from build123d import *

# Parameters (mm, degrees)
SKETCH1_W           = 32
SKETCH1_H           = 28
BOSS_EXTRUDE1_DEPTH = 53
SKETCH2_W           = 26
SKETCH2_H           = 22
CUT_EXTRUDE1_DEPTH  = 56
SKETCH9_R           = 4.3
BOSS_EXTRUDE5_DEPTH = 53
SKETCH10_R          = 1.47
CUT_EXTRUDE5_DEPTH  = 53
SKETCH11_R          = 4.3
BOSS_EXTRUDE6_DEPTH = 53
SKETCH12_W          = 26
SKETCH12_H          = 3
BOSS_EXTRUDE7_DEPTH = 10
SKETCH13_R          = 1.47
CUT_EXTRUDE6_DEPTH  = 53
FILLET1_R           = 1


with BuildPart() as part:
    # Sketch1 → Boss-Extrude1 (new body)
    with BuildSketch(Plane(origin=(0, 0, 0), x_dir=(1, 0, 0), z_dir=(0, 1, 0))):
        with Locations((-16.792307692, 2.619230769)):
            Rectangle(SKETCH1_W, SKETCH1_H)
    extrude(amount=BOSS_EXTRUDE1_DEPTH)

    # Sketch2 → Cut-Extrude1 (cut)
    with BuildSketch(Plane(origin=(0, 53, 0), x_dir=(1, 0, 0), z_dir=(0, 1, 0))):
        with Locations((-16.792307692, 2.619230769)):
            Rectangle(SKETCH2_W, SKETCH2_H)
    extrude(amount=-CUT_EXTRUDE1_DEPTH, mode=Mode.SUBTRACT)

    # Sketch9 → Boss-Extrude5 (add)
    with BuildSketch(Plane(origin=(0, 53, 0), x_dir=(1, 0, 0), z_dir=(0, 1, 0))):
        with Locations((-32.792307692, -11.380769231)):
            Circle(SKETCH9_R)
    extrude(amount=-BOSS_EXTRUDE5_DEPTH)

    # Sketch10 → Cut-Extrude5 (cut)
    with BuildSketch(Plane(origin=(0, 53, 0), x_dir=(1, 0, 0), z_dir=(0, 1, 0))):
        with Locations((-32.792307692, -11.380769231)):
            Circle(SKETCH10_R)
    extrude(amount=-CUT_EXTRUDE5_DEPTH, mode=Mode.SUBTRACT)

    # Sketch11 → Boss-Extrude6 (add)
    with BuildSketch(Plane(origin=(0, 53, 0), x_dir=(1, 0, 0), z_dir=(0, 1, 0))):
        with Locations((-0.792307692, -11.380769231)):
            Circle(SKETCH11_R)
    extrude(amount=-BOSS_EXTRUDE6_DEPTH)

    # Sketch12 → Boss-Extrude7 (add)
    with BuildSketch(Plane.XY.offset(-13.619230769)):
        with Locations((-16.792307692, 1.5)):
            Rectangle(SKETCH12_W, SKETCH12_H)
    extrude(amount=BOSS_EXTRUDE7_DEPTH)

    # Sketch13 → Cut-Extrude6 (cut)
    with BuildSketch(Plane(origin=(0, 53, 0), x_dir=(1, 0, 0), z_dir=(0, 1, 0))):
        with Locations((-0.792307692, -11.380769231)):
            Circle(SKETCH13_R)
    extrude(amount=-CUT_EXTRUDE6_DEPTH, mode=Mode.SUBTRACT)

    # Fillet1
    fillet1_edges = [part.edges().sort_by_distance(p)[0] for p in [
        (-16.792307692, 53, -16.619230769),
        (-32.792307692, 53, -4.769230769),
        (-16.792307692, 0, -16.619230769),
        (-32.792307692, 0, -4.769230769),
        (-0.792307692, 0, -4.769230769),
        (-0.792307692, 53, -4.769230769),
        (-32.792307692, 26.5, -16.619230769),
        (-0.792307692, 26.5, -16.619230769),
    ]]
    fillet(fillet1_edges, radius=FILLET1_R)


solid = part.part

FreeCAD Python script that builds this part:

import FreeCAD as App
import Part
import Sketcher
from FreeCAD import Vector


def edges_at(feature, points):
    """Names of the edges that pass closest to the given points."""
    edges = feature.Shape.Edges
    near = lambda p: min(range(len(edges)), key=lambda i: edges[i].distToShape(Part.Vertex(*p))[0])
    return sorted({f"Edge{near(p) + 1}" for p in points})

doc = App.newDocument("Part")
body = doc.addObject("PartDesign::Body", "Body")

sketch1 = doc.addObject("Sketcher::SketchObject", "Sketch")
body.addObject(sketch1)
sketch1.AttachmentSupport = (doc.XZ_Plane, [""])
sketch1.MapMode = "FlatFace"
sketch1.addGeometry([
    Part.LineSegment(Vector(-33, -17, 0), Vector(-33, 11, 0)),
    Part.LineSegment(Vector(-33, 11, 0), Vector(-1, 11, 0)),
    Part.LineSegment(Vector(-1, 11, 0), Vector(-1, -17, 0)),
    Part.LineSegment(Vector(-1, -17, 0), Vector(-33, -17, 0)),
], False)
sketch1.addConstraint([
    Sketcher.Constraint("Coincident", 0, 2, 1, 1),
    Sketcher.Constraint("Coincident", 1, 2, 2, 1),
    Sketcher.Constraint("Coincident", 2, 2, 3, 1),
    Sketcher.Constraint("Coincident", 3, 2, 0, 1),
    Sketcher.Constraint("Vertical", 0),
    Sketcher.Constraint("Horizontal", 1),
    Sketcher.Constraint("Vertical", 2),
    Sketcher.Constraint("Horizontal", 3),
    Sketcher.Constraint("DistanceX", 1, 1, 1, 2, 32.0),
    Sketcher.Constraint("DistanceY", 0, 1, 0, 2, 28.0),
    Sketcher.Constraint("DistanceY", -1, 1, 0, 2, 11.380769),
    Sketcher.Constraint("DistanceX", 0, 2, -1, 1, 32.792308),
])
pad1 = doc.addObject("PartDesign::Pad", "Pad")
body.addObject(pad1)
pad1.Profile = sketch1
pad1.Length = 53
pad1.Reversed = True

sketch2 = doc.addObject("Sketcher::SketchObject", "Sketch001")
body.addObject(sketch2)
sketch2.AttachmentSupport = (doc.XZ_Plane, [""])
sketch2.MapMode = "FlatFace"
sketch2.AttachmentOffset = App.Placement(Vector(0, 0, -53), App.Rotation())
sketch2.addGeometry([
    Part.LineSegment(Vector(-30, -14, 0), Vector(-30, 8, 0)),
    Part.LineSegment(Vector(-30, 8, 0), Vector(-4, 8, 0)),
    Part.LineSegment(Vector(-4, 8, 0), Vector(-4, -14, 0)),
    Part.LineSegment(Vector(-4, -14, 0), Vector(-30, -14, 0)),
], False)
sketch2.addConstraint([
    Sketcher.Constraint("Coincident", 0, 2, 1, 1),
    Sketcher.Constraint("Coincident", 1, 2, 2, 1),
    Sketcher.Constraint("Coincident", 2, 2, 3, 1),
    Sketcher.Constraint("Coincident", 3, 2, 0, 1),
    Sketcher.Constraint("Vertical", 0),
    Sketcher.Constraint("Horizontal", 1),
    Sketcher.Constraint("Vertical", 2),
    Sketcher.Constraint("Horizontal", 3),
    Sketcher.Constraint("DistanceX", 1, 1, 1, 2, 26.0),
    Sketcher.Constraint("DistanceY", 0, 1, 0, 2, 22.0),
    Sketcher.Constraint("DistanceY", -1, 1, 0, 2, 8.380769),
    Sketcher.Constraint("DistanceX", 0, 2, -1, 1, 29.792308),
])
pocket1 = doc.addObject("PartDesign::Pocket", "Pocket")
body.addObject(pocket1)
pocket1.Profile = sketch2
pocket1.Length = 56
pocket1.Reversed = True

sketch3 = doc.addObject("Sketcher::SketchObject", "Sketch002")
body.addObject(sketch3)
sketch3.AttachmentSupport = (doc.XZ_Plane, [""])
sketch3.MapMode = "FlatFace"
sketch3.AttachmentOffset = App.Placement(Vector(0, 0, -53), App.Rotation())
sketch3.addGeometry(Part.Circle(Vector(-32.8, 11.4, 0), Vector(0, 0, 1), 4.3), False)
sketch3.addConstraint([
    Sketcher.Constraint("Diameter", 0, 8.6),
    Sketcher.Constraint("DistanceY", -1, 1, 0, 3, 11.380769),
    Sketcher.Constraint("DistanceX", 0, 3, -1, 1, 32.792308),
])
pad2 = doc.addObject("PartDesign::Pad", "Pad001")
body.addObject(pad2)
pad2.Profile = sketch3
pad2.Length = 53

sketch4 = doc.addObject("Sketcher::SketchObject", "Sketch003")
body.addObject(sketch4)
sketch4.AttachmentSupport = (doc.XZ_Plane, [""])
sketch4.MapMode = "FlatFace"
sketch4.AttachmentOffset = App.Placement(Vector(0, 0, -53), App.Rotation())
sketch4.addGeometry(Part.Circle(Vector(-32.8, 11.4, 0), Vector(0, 0, 1), 1.5), False)
sketch4.addConstraint([
    Sketcher.Constraint("Diameter", 0, 2.94),
    Sketcher.Constraint("DistanceY", -1, 1, 0, 3, 11.380769),
    Sketcher.Constraint("DistanceX", 0, 3, -1, 1, 32.792308),
])
pocket2 = doc.addObject("PartDesign::Pocket", "Pocket001")
body.addObject(pocket2)
pocket2.Profile = sketch4
pocket2.Length = 53
pocket2.Reversed = True

sketch5 = doc.addObject("Sketcher::SketchObject", "Sketch004")
body.addObject(sketch5)
sketch5.AttachmentSupport = (doc.XZ_Plane, [""])
sketch5.MapMode = "FlatFace"
sketch5.AttachmentOffset = App.Placement(Vector(0, 0, -53), App.Rotation())
sketch5.addGeometry(Part.Circle(Vector(-0.8, 11.4, 0), Vector(0, 0, 1), 4.3), False)
sketch5.addConstraint([
    Sketcher.Constraint("Diameter", 0, 8.6),
    Sketcher.Constraint("DistanceY", -1, 1, 0, 3, 11.380769),
    Sketcher.Constraint("DistanceX", 0, 3, -1, 1, 0.792308),
])
pad3 = doc.addObject("PartDesign::Pad", "Pad002")
body.addObject(pad3)
pad3.Profile = sketch5
pad3.Length = 53

sketch6 = doc.addObject("Sketcher::SketchObject", "Sketch005")
body.addObject(sketch6)
sketch6.AttachmentSupport = (doc.XY_Plane, [""])
sketch6.MapMode = "FlatFace"
sketch6.AttachmentOffset = App.Placement(Vector(0, 0, -13.619231), App.Rotation())
sketch6.addGeometry([
    Part.LineSegment(Vector(-29.8, 3, 0), Vector(-29.8, 0, 0)),
    Part.LineSegment(Vector(-29.8, 0, 0), Vector(-3.8, 0, 0)),
    Part.LineSegment(Vector(-3.8, 0, 0), Vector(-3.8, 3, 0)),
    Part.LineSegment(Vector(-3.8, 3, 0), Vector(-29.8, 3, 0)),
], False)
sketch6.addConstraint([
    Sketcher.Constraint("Coincident", 0, 2, 1, 1),
    Sketcher.Constraint("Coincident", 1, 2, 2, 1),
    Sketcher.Constraint("Coincident", 2, 2, 3, 1),
    Sketcher.Constraint("Coincident", 3, 2, 0, 1),
    Sketcher.Constraint("Vertical", 0),
    Sketcher.Constraint("Horizontal", 1),
    Sketcher.Constraint("Vertical", 2),
    Sketcher.Constraint("Horizontal", 3),
    Sketcher.Constraint("PointOnObject", 0, 2, -1),
    Sketcher.Constraint("DistanceX", 1, 1, 1, 2, 26.0),
    Sketcher.Constraint("DistanceY", 0, 2, 0, 1, 3.0),
    Sketcher.Constraint("DistanceX", 0, 2, -1, 1, 29.792308),
])
pad4 = doc.addObject("PartDesign::Pad", "Pad003")
body.addObject(pad4)
pad4.Profile = sketch6
pad4.Length = 10

sketch7 = doc.addObject("Sketcher::SketchObject", "Sketch006")
body.addObject(sketch7)
sketch7.AttachmentSupport = (doc.XZ_Plane, [""])
sketch7.MapMode = "FlatFace"
sketch7.AttachmentOffset = App.Placement(Vector(0, 0, -53), App.Rotation())
sketch7.addGeometry(Part.Circle(Vector(-0.8, 11.4, 0), Vector(0, 0, 1), 1.5), False)
sketch7.addConstraint([
    Sketcher.Constraint("Diameter", 0, 2.94),
    Sketcher.Constraint("DistanceY", -1, 1, 0, 3, 11.380769),
    Sketcher.Constraint("DistanceX", 0, 3, -1, 1, 0.792308),
])
pocket3 = doc.addObject("PartDesign::Pocket", "Pocket002")
body.addObject(pocket3)
pocket3.Profile = sketch7
pocket3.Length = 53
pocket3.Reversed = True
doc.recompute()

fillet = doc.addObject("PartDesign::Fillet", "Fillet")
body.addObject(fillet)
fillet.Base = (pocket3, edges_at(pocket3, [
    (-16.792, 53, -16.619),
    (-32.792, 53, -4.769),
    (-16.792, 0, -16.619),
    (-32.792, 0, -4.769),
    (-0.792, 0, -4.769),
    (-0.792, 53, -4.769),
    (-32.792, 26.5, -16.619),
    (-0.792, 26.5, -16.619),
]))
fillet.Radius = 1

doc.recompute()
